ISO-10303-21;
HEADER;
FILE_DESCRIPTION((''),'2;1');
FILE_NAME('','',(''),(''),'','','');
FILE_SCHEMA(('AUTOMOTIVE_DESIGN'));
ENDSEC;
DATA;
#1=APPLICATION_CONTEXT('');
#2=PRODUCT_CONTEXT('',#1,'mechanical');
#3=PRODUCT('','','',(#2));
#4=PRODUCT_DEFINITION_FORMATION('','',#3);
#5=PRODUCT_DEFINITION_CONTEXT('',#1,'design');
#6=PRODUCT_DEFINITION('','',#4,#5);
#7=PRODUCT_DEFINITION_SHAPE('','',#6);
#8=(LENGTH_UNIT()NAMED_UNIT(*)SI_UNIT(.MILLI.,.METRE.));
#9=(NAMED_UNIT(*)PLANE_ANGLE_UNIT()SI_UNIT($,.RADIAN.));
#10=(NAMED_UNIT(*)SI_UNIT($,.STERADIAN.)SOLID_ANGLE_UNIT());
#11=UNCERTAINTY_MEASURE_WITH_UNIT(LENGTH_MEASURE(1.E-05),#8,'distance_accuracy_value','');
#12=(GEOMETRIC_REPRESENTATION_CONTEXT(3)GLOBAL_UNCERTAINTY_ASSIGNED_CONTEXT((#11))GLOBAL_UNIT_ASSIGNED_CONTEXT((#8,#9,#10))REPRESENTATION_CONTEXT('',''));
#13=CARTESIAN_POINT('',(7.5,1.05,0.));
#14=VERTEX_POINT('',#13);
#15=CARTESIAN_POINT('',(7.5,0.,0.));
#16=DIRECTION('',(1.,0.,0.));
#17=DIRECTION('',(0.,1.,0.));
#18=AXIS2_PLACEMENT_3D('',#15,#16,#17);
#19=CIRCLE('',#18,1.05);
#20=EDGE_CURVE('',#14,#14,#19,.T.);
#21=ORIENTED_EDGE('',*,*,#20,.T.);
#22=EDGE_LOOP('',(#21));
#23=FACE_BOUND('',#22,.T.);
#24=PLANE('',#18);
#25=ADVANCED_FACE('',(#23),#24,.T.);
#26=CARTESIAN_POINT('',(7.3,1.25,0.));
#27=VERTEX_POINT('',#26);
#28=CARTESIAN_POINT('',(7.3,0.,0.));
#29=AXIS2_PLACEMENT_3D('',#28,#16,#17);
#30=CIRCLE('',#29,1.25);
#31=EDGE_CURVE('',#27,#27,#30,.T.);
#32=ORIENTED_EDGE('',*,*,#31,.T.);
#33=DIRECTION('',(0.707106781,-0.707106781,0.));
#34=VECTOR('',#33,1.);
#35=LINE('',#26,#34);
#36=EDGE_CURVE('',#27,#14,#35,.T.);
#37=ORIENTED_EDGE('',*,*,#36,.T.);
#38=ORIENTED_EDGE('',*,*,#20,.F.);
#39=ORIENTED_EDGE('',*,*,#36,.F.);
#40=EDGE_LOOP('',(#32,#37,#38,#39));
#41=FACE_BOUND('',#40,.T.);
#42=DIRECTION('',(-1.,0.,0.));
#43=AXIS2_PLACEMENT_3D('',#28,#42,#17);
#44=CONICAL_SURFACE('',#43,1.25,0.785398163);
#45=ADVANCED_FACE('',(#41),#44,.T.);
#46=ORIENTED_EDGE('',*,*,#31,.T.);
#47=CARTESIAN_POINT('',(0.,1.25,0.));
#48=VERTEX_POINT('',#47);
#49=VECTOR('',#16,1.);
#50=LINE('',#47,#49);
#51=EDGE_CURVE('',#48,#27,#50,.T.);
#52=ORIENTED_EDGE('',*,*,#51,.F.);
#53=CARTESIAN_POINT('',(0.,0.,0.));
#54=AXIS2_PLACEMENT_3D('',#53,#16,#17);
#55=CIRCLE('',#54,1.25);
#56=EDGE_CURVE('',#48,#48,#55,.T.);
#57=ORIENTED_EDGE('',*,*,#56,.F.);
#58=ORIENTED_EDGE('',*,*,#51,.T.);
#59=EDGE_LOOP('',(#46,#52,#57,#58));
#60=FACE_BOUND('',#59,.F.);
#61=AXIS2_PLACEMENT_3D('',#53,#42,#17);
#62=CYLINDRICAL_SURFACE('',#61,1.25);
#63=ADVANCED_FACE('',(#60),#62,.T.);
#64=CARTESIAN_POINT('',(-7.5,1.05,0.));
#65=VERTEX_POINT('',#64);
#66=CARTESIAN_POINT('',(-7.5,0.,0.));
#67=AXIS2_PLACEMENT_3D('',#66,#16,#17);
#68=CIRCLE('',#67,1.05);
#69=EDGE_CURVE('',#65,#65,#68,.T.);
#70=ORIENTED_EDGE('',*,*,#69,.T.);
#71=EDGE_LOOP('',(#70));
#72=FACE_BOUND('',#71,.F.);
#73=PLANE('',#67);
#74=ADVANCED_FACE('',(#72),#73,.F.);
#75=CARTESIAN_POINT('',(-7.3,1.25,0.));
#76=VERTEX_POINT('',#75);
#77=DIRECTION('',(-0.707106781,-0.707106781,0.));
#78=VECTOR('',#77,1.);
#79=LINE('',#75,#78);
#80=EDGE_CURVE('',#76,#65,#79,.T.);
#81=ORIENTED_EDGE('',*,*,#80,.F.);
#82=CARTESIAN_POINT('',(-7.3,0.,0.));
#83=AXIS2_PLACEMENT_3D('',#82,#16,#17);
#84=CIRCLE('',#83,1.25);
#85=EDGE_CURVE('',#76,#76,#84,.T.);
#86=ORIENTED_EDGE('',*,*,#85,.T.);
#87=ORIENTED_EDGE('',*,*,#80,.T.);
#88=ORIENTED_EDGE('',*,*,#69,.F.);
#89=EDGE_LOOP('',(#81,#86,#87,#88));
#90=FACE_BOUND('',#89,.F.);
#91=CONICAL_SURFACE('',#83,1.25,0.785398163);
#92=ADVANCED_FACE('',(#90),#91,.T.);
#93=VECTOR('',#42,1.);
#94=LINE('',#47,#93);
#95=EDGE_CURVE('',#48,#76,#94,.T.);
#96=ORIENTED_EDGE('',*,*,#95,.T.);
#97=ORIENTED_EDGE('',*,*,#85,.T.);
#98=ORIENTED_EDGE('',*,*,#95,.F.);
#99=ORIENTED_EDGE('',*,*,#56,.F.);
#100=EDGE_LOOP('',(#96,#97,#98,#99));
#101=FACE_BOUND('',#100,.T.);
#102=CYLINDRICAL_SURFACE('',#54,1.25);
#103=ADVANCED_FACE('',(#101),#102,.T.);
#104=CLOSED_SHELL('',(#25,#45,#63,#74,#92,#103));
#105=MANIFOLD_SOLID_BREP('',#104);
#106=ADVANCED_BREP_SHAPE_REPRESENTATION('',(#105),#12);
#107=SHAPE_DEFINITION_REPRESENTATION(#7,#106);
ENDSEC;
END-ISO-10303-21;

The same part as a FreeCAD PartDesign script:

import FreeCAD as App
import Part
import Sketcher

V = App.Vector
Q = App.Units.Quantity


def edges_at(feature, points):
    """Names of the edges that pass closest to the given points."""
    edges = feature.Shape.Edges
    near = lambda p: min(range(len(edges)), key=lambda i: edges[i].distToShape(Part.Vertex(*p))[0])
    return sorted({f"Edge{near(p) + 1}" for p in points})

doc = App.newDocument("Part")
body = doc.addObject("PartDesign::Body", "Body")

# Sketch on YZ plane
sketch1 = body.newObject("Sketcher::SketchObject", "Sketch")
sketch1.AttachmentSupport = (doc.getObject("YZ_Plane"), [""])
sketch1.MapMode = "FlatFace"
sketch1.addGeometry(Part.Circle(V(0, 0, 0), V(0, 0, 1), 1.2), False)
sketch1.addConstraint(Sketcher.Constraint("Coincident", 0, 3, -1, 1))
sketch1.addConstraint(Sketcher.Constraint("Diameter", 0, Q("2.5 mm")))
pad1 = body.newObject("PartDesign::Pad", "Pad")
pad1.Profile = sketch1
pad1.Length = 15
pad1.Midplane = True
doc.recompute()

chamfer = body.newObject("PartDesign::Chamfer", "Chamfer")
chamfer.Base = (pad1, edges_at(pad1, [(7.5, -1.25, 0), (-7.5, -1.25, 0)]))
chamfer.Size = 0.2

doc.recompute()
